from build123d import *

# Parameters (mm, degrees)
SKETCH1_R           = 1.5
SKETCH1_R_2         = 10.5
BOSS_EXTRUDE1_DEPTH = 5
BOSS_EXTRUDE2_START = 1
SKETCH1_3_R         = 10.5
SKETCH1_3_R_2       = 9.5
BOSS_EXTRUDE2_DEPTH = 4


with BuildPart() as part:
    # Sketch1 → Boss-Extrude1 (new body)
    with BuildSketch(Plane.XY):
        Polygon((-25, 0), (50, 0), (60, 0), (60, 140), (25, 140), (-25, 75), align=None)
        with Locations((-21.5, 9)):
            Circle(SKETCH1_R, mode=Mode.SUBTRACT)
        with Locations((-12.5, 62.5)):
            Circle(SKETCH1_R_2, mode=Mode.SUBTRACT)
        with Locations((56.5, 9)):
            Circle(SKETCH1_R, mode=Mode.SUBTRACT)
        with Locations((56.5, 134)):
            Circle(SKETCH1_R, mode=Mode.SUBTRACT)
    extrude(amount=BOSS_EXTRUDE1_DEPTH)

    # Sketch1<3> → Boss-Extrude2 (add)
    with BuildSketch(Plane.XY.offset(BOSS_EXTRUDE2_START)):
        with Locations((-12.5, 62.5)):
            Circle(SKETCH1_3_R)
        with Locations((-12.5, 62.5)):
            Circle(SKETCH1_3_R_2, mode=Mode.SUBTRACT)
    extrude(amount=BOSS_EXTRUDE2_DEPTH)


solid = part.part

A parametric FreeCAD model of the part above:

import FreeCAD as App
import Part
import Sketcher

V = App.Vector
Q = App.Units.Quantity

doc = App.newDocument("Part")
body = doc.addObject("PartDesign::Body", "Body")

sketch1 = doc.addObject("Sketcher::SketchObject", "Sketch")
body.addObject(sketch1)
sketch1.AttachmentSupport = (doc.XY_Plane, [""])
sketch1.MapMode = "FlatFace"
sketch1.addGeometry(Part.LineSegment(V(-25, 0, 0), V(60, 0, 0)), False)
sketch1.addGeometry(Part.LineSegment(V(60, 0, 0), V(60, 140, 0)), False)
sketch1.addGeometry(Part.LineSegment(V(60, 140, 0), V(25, 140, 0)), False)
sketch1.addGeometry(Part.LineSegment(V(25, 140, 0), V(-25, 75, 0)), False)
sketch1.addGeometry(Part.LineSegment(V(-25, 75, 0), V(-25, 0, 0)), False)
sketch1.addGeometry(Part.Circle(V(-21.5, 9, 0), V(0, 0, 1), 1.5), False)
sketch1.addGeometry(Part.Circle(V(-12.5, 62.5, 0), V(0, 0, 1), 10.5), False)
sketch1.addGeometry(Part.Circle(V(56.5, 9, 0), V(0, 0, 1), 1.5), False)
sketch1.addGeometry(Part.Circle(V(56.5, 134, 0), V(0, 0, 1), 1.5), False)
sketch1.addConstraint(Sketcher.Constraint("Coincident", 0, 2, 1, 1))
sketch1.addConstraint(Sketcher.Constraint("Coincident", 1, 2, 2, 1))
sketch1.addConstraint(Sketcher.Constraint("Coincident", 2, 2, 3, 1))
sketch1.addConstraint(Sketcher.Constraint("Coincident", 3, 2, 4, 1))
sketch1.addConstraint(Sketcher.Constraint("Coincident", 4, 2, 0, 1))
sketch1.addConstraint(Sketcher.Constraint("Horizontal", 0))
sketch1.addConstraint(Sketcher.Constraint("Vertical", 1))
sketch1.addConstraint(Sketcher.Constraint("Horizontal", 2))
sketch1.addConstraint(Sketcher.Constraint("Vertical", 4))
sketch1.addConstraint(Sketcher.Constraint("Equal", 5, 7))
sketch1.addConstraint(Sketcher.Constraint("Equal", 7, 8))
sketch1.addConstraint(Sketcher.Constraint("PointOnObject", 0, 2, -1))
sketch1.addConstraint(Sketcher.Constraint("Horizontal", 5, 3, 7, 3))
sketch1.addConstraint(Sketcher.Constraint("Vertical", 7, 3, 8, 3))
sketch1.addConstraint(Sketcher.Constraint("Diameter", 5, Q("3 mm")))
sketch1.addConstraint(Sketcher.Constraint("Diameter", 6, Q("21 mm")))
sketch1.addConstraint(Sketcher.Constraint("DistanceX", 0, 1, 0, 2, Q("85 mm")))
sketch1.addConstraint(Sketcher.Constraint("DistanceX", 2, 2, 2, 1, Q("35 mm")))
sketch1.addConstraint(Sketcher.Constraint("DistanceY", 1, 1, 1, 2, Q("140 mm")))
sketch1.addConstraint(Sketcher.Constraint("DistanceY", 4, 2, 4, 1, Q("75 mm")))
sketch1.addConstraint(Sketcher.Constraint("DistanceY", -1, 1, 5, 3, Q("9 mm")))
sketch1.addConstraint(Sketcher.Constraint("DistanceY", -1, 1, 8, 3, Q("134 mm")))
sketch1.addConstraint(Sketcher.Constraint("DistanceX", -1, 1, 0, 2, Q("60 mm")))
sketch1.addConstraint(Sketcher.Constraint("DistanceX", 5, 3, 6, 3, Q("9 mm")))
sketch1.addConstraint(Sketcher.Constraint("DistanceX", 5, 3, 7, 3, Q("78 mm")))
sketch1.addConstraint(Sketcher.Constraint("DistanceX", 5, 3, -1, 1, Q("21.5 mm")))
sketch1.addConstraint(Sketcher.Constraint("DistanceY", -1, 1, 6, 3, Q("62.5 mm")))
pad1 = doc.addObject("PartDesign::Pad", "Pad")
body.addObject(pad1)
pad1.Profile = sketch1
pad1.Length = 5

sketch2 = doc.addObject("Sketcher::SketchObject", "Sketch001")
body.addObject(sketch2)
sketch2.AttachmentSupport = (doc.XY_Plane, [""])
sketch2.MapMode = "FlatFace"
sketch2.AttachmentOffset = App.Placement(V(0, 0, 1), App.Rotation())
sketch2.addGeometry(Part.Circle(V(-12, 62, 0), V(0, 0, 1), 10), False)
sketch2.addGeometry(Part.Circle(V(-12, 62, 0), V(0, 0, 1), 10), False)
sketch2.addConstraint(Sketcher.Constraint("Coincident", 1, 3, 0, 3))
sketch2.addConstraint(Sketcher.Constraint("Diameter", 0, Q("21 mm")))
sketch2.addConstraint(Sketcher.Constraint("Diameter", 1, Q("19 mm")))
sketch2.addConstraint(Sketcher.Constraint("DistanceX", 0, 3, -1, 1, Q("12.5 mm")))
sketch2.addConstraint(Sketcher.Constraint("DistanceY", -1, 1, 0, 3, Q("62.5 mm")))
pad2 = doc.addObject("PartDesign::Pad", "Pad001")
body.addObject(pad2)
pad2.Profile = sketch2
pad2.Length = 4

doc.recompute()
